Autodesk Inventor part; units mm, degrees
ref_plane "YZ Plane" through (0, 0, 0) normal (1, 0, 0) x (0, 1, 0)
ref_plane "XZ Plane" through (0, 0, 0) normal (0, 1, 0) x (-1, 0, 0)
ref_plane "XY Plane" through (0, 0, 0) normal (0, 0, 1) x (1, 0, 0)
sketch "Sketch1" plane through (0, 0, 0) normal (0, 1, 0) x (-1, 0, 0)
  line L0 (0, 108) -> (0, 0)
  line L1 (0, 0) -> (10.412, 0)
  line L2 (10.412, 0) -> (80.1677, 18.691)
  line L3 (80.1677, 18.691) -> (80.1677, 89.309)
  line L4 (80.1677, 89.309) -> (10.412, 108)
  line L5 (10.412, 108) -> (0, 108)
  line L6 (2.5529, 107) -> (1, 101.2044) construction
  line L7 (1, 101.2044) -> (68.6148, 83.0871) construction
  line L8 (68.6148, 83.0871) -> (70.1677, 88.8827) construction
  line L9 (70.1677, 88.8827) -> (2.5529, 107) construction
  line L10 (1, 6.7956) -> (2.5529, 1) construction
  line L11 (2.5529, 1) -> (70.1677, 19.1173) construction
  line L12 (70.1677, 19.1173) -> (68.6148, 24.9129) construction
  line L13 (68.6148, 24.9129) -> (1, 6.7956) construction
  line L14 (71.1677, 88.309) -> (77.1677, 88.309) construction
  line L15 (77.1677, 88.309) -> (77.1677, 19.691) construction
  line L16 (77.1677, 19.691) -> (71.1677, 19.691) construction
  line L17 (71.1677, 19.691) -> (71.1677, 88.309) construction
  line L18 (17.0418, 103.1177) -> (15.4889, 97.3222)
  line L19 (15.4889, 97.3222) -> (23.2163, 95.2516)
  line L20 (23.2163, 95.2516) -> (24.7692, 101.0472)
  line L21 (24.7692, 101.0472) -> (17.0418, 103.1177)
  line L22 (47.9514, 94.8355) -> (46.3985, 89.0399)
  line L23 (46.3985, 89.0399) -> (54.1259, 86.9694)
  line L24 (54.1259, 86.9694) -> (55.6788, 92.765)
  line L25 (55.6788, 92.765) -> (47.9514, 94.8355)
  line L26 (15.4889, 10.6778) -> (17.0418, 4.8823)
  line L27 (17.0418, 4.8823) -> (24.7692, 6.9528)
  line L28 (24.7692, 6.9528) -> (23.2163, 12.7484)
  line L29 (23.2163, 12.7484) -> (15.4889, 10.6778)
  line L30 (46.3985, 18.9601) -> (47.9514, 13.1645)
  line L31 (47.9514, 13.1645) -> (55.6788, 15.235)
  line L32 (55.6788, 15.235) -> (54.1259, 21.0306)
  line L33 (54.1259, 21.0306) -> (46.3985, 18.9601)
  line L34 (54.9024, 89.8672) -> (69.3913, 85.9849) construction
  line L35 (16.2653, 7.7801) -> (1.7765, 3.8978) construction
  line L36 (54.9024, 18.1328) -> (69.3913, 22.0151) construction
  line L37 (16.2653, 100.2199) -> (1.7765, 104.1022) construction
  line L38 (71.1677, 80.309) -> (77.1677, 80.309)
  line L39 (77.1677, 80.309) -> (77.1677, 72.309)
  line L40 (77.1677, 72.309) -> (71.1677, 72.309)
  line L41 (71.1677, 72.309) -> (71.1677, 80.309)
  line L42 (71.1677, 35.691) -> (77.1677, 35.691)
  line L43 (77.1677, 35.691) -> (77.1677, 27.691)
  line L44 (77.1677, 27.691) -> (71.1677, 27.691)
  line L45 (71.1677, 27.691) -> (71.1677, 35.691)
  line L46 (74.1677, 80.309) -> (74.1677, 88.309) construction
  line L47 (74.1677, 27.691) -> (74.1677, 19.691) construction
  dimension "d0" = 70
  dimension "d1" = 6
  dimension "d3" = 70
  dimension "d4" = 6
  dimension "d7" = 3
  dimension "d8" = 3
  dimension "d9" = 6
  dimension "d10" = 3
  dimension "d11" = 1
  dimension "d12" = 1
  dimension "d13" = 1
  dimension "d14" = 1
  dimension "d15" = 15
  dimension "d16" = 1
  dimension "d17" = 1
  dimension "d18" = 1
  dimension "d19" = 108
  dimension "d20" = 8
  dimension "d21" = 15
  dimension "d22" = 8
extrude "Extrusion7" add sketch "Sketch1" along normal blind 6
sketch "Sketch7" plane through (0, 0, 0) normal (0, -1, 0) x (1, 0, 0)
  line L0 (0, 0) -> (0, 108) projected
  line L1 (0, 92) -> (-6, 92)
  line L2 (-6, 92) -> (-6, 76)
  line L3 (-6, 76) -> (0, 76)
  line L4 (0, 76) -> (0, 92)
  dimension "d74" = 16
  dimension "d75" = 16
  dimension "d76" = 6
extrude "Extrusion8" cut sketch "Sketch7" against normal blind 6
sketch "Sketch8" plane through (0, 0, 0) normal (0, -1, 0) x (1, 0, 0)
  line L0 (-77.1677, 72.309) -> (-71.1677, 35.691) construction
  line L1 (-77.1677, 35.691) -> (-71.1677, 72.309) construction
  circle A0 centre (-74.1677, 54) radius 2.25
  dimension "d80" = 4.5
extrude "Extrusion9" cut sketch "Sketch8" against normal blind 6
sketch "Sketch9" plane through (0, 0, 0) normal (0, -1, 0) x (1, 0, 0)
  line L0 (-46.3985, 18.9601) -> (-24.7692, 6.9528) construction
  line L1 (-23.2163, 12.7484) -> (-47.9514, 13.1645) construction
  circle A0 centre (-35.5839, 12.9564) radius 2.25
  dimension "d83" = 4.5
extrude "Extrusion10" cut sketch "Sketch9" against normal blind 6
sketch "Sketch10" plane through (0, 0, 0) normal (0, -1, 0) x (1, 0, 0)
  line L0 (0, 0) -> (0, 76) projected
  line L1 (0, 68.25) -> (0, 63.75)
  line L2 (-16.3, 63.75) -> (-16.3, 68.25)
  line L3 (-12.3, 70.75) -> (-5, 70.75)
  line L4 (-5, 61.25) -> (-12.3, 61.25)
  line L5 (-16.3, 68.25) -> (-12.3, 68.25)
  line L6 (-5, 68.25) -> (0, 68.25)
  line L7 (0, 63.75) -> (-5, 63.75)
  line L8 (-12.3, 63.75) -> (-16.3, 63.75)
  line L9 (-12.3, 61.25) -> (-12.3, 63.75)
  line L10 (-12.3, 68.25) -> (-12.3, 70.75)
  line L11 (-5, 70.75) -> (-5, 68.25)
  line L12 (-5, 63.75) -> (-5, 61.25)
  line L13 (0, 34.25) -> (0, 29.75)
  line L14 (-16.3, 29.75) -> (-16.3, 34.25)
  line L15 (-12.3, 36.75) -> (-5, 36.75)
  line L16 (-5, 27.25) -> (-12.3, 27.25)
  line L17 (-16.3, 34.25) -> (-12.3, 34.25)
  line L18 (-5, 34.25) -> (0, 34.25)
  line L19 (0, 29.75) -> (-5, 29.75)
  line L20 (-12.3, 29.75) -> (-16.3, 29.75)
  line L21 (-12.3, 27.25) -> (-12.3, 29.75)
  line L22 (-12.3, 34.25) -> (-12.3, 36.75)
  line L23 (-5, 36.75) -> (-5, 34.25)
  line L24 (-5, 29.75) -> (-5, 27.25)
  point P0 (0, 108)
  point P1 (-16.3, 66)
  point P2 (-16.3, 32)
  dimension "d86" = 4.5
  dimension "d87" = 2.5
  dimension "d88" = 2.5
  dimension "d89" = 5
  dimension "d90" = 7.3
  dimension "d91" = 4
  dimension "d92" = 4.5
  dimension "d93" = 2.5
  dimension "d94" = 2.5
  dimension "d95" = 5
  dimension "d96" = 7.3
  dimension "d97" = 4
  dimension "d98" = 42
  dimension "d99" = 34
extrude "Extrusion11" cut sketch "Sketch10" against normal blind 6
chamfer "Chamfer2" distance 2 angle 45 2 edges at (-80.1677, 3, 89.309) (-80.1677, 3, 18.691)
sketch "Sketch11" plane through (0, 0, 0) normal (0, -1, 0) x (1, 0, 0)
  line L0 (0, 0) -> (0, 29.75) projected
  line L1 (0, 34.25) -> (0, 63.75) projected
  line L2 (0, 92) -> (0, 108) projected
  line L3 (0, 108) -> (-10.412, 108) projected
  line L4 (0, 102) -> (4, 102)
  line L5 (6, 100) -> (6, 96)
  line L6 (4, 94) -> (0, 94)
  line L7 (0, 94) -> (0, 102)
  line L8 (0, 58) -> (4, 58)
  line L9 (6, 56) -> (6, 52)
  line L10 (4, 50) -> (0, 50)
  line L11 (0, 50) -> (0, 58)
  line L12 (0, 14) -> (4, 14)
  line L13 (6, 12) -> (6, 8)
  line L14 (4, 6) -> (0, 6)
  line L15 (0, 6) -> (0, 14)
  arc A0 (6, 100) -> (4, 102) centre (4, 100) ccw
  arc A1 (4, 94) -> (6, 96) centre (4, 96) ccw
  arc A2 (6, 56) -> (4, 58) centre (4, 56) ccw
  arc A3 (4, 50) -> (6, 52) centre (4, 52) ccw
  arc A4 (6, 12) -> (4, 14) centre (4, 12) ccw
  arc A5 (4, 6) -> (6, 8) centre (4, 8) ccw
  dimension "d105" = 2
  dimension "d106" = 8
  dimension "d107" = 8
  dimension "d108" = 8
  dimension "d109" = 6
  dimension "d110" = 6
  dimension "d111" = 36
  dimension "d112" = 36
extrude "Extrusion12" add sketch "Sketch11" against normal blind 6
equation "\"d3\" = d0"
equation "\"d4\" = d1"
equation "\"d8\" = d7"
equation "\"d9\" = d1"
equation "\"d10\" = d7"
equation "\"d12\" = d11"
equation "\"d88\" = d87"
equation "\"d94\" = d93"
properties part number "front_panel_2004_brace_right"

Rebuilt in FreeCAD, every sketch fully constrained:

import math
import FreeCAD as App
import Part
import Sketcher
Q = App.Units.Quantity


def edges_at(feature, points):
    """Names of the edges that pass closest to the given points."""
    edges = feature.Shape.Edges
    near = lambda p: min(range(len(edges)), key=lambda i: edges[i].distToShape(Part.Vertex(*p))[0])
    return sorted({f"Edge{near(p) + 1}" for p in points})


def add_polygon(sketch, points):
    """Adds a closed chain of lines whose ends are joined by coincident constraints."""
    first, n = sketch.GeometryCount, len(points)
    for a, b in zip(points, points[1:] + points[:1]):
        sketch.addGeometry(Part.LineSegment(App.Vector(*a, 0), App.Vector(*b, 0)), False)
    for i in range(n):
        sketch.addConstraint(Sketcher.Constraint("Coincident", first + i, 2, first + (i + 1) % n, 1))

doc = App.newDocument("Part")
body = doc.addObject("PartDesign::Body", "Body")

sketch1 = body.newObject("Sketcher::SketchObject", "Sketch")
sketch1.AttachmentSupport = (doc.getObject("XZ_Plane"), [""])
sketch1.MapMode = "FlatFace"
add_polygon(sketch1, [(-10.412, 108), (0, 108), (0, 0), (-10.412, 0), (-80.1677, 18.691), (-80.1677, 89.309)])
add_polygon(sketch1, [(-17.0418, 4.8823), (-15.4889, 10.6778), (-23.2163, 12.7484), (-24.7692, 6.9528)])
add_polygon(sketch1, [(-47.9514, 13.1645), (-46.3985, 18.9601), (-54.1259, 21.0306), (-55.6788, 15.235)])
add_polygon(sketch1, [(-71.1677, 27.691), (-71.1677, 35.691), (-77.1677, 35.691), (-77.1677, 27.691)])
add_polygon(sketch1, [(-15.4889, 97.3222), (-17.0418, 103.1177), (-24.7692, 101.0472), (-23.2163, 95.2516)])
add_polygon(sketch1, [(-71.1677, 72.309), (-71.1677, 80.309), (-77.1677, 80.309), (-77.1677, 72.309)])
add_polygon(sketch1, [(-46.3985, 89.0399), (-47.9514, 94.8355), (-55.6788, 92.765), (-54.1259, 86.9694)])
sketch1.addConstraint(Sketcher.Constraint("Horizontal", 0))
sketch1.addConstraint(Sketcher.Constraint("Vertical", 1))
sketch1.addConstraint(Sketcher.Constraint("Horizontal", 2))
sketch1.addConstraint(Sketcher.Constraint("Vertical", 4))
sketch1.addConstraint(Sketcher.Constraint("Vertical", 14))
sketch1.addConstraint(Sketcher.Constraint("Horizontal", 15))
sketch1.addConstraint(Sketcher.Constraint("Vertical", 16))
sketch1.addConstraint(Sketcher.Constraint("Horizontal", 17))
sketch1.addConstraint(Sketcher.Constraint("Vertical", 22))
sketch1.addConstraint(Sketcher.Constraint("Horizontal", 23))
sketch1.addConstraint(Sketcher.Constraint("Vertical", 24))
sketch1.addConstraint(Sketcher.Constraint("Horizontal", 25))
sketch1.addConstraint(Sketcher.Constraint("Coincident", 1, 2, -1, 1))
sketch1.addConstraint(Sketcher.Constraint("Perpendicular", 3, 6))
sketch1.addConstraint(Sketcher.Constraint("Perpendicular", 6, 7))
sketch1.addConstraint(Sketcher.Constraint("Perpendicular", 7, 8))
sketch1.addConstraint(Sketcher.Constraint("Perpendicular", 8, 9))
sketch1.addConstraint(Sketcher.Constraint("Perpendicular", 9, 10))
sketch1.addConstraint(Sketcher.Constraint("Perpendicular", 10, 11))
sketch1.addConstraint(Sketcher.Constraint("Perpendicular", 11, 12))
sketch1.addConstraint(Sketcher.Constraint("Perpendicular", 12, 13))
sketch1.addConstraint(Sketcher.Constraint("Perpendicular", 5, 18))
sketch1.addConstraint(Sketcher.Constraint("Perpendicular", 18, 19))
sketch1.addConstraint(Sketcher.Constraint("Perpendicular", 19, 20))
sketch1.addConstraint(Sketcher.Constraint("Perpendicular", 20, 21))
sketch1.addConstraint(Sketcher.Constraint("Perpendicular", 21, 26))
sketch1.addConstraint(Sketcher.Constraint("Perpendicular", 26, 27))
sketch1.addConstraint(Sketcher.Constraint("Perpendicular", 27, 28))
sketch1.addConstraint(Sketcher.Constraint("Perpendicular", 28, 29))
sketch1.addConstraint(Sketcher.Constraint("Vertical", 2, 2, 5, 2))
sketch1.addConstraint(Sketcher.Constraint("Vertical", 9, 2, 18, 2))
sketch1.addConstraint(Sketcher.Constraint("Vertical", 8, 2, 19, 2))
sketch1.addConstraint(Sketcher.Constraint("Vertical", 7, 2, 20, 2))
sketch1.addConstraint(Sketcher.Constraint("Vertical", 17, 2, 22, 2))
sketch1.addConstraint(Sketcher.Constraint("Vertical", 16, 2, 23, 2))
sketch1.addConstraint(Sketcher.Constraint("Vertical", 13, 2, 26, 2))
sketch1.addConstraint(Sketcher.Constraint("Vertical", 12, 2, 27, 2))
sketch1.addConstraint(Sketcher.Constraint("Vertical", 11, 2, 28, 2))
sketch1.addConstraint(Sketcher.Constraint("Equal", 16, 22))
sketch1.addConstraint(Sketcher.Constraint("Equal", 3, 5))
sketch1.addConstraint(Sketcher.Constraint("Equal", 8, 10))
sketch1.addConstraint(Sketcher.Constraint("Equal", 9, 11))
sketch1.addConstraint(Sketcher.Constraint("DistanceX", 15, 2, 15, 1, Q("6 mm")))
sketch1.addConstraint(Sketcher.Constraint("DistanceY", 1, 2, 1, 1, Q("108 mm")))
sketch1.addConstraint(Sketcher.Constraint("DistanceY", 14, 1, 14, 2, Q("8 mm")))
sketch1.addConstraint(Sketcher.Constraint("Angle", 5, Q("15 deg")))
sketch1.addConstraint(Sketcher.Constraint("Distance", 6, Q("6 mm")))
sketch1.addConstraint(Sketcher.Constraint("Distance", 7, Q("8 mm")))
sketch1.addConstraint(Sketcher.Constraint("DistanceX", 3, 2, 15, 2, Q("3 mm")))
sketch1.addConstraint(Sketcher.Constraint("DistanceY", 3, 2, 14, 2, Q("17 mm")))
sketch1.addConstraint(Sketcher.Constraint("DistanceY", 22, 2, 4, 2, Q("9 mm")))
sketch1.addConstraint(Sketcher.Constraint("DistanceX", 0, 1, 0, 2, Q("10.412 mm")))
sketch1.addConstraint(Sketcher.Constraint("DistanceY", 4, 1, 4, 2, Q("70.618 mm")))
sketch1.addConstraint(Sketcher.Constraint("DistanceY", -1, 1, 10, 2, Q("18.96 mm")))
sketch1.addConstraint(Sketcher.Constraint("DistanceY", -1, 1, 29, 2, Q("89.04 mm")))
sketch1.addConstraint(Sketcher.Constraint("DistanceX", 6, 2, -1, 1, Q("15.489 mm")))
sketch1.addConstraint(Sketcher.Constraint("DistanceX", 11, 2, -1, 1, Q("54.126 mm")))
sketch1.addConstraint(Sketcher.Constraint("DistanceY", 7, 2, 13, 2, Q("0.416 mm")))
sketch1.addConstraint(Sketcher.Constraint("DistanceY", 26, 2, 20, 2, Q("0.416 mm")))
pad1 = body.newObject("PartDesign::Pad", "Pad")
pad1.Profile = sketch1
pad1.Length = 6
pad1.Reversed = True

sketch2 = body.newObject("Sketcher::SketchObject", "Sketch001")
sketch2.AttachmentSupport = (doc.getObject("XZ_Plane"), [""])
sketch2.MapMode = "FlatFace"
add_polygon(sketch2, [(-6, 76), (0, 76), (0, 92), (-6, 92)])
sketch2.addConstraint(Sketcher.Constraint("Horizontal", 0))
sketch2.addConstraint(Sketcher.Constraint("Vertical", 1))
sketch2.addConstraint(Sketcher.Constraint("Horizontal", 2))
sketch2.addConstraint(Sketcher.Constraint("Vertical", 3))
sketch2.addConstraint(Sketcher.Constraint("PointOnObject", 0, 2, -2))
sketch2.addConstraint(Sketcher.Constraint("DistanceX", 0, 1, 0, 2, Q("6 mm")))
sketch2.addConstraint(Sketcher.Constraint("DistanceY", 1, 1, 1, 2, Q("16 mm")))
sketch2.addConstraint(Sketcher.Constraint("DistanceY", -1, 1, 0, 2, Q("76 mm")))
pocket1 = body.newObject("PartDesign::Pocket", "Pocket")
pocket1.Profile = sketch2
pocket1.Length = 6

sketch3 = body.newObject("Sketcher::SketchObject", "Sketch002")
sketch3.AttachmentSupport = (doc.getObject("XZ_Plane"), [""])
sketch3.MapMode = "FlatFace"
sketch3.addGeometry(Part.Circle(App.Vector(-74.1677, 54, 0), App.Vector(0, 0, 1), 2.25), False)
sketch3.addConstraint(Sketcher.Constraint("Diameter", 0, Q("4.5 mm")))
sketch3.addConstraint(Sketcher.Constraint("DistanceY", -1, 1, 0, 3, Q("54 mm")))
sketch3.addConstraint(Sketcher.Constraint("DistanceX", 0, 3, -1, 1, Q("74.1677 mm")))
pocket2 = body.newObject("PartDesign::Pocket", "Pocket001")
pocket2.Profile = sketch3
pocket2.Length = 6

sketch4 = body.newObject("Sketcher::SketchObject", "Sketch003")
sketch4.AttachmentSupport = (doc.getObject("XZ_Plane"), [""])
sketch4.MapMode = "FlatFace"
sketch4.addGeometry(Part.Circle(App.Vector(-35.5839, 12.9564, 0), App.Vector(0, 0, 1), 2.25), False)
sketch4.addConstraint(Sketcher.Constraint("Diameter", 0, Q("4.5 mm")))
sketch4.addConstraint(Sketcher.Constraint("DistanceX", 0, 3, -1, 1, Q("35.584 mm")))
sketch4.addConstraint(Sketcher.Constraint("DistanceY", -1, 1, 0, 3, Q("12.9564 mm")))
pocket3 = body.newObject("PartDesign::Pocket", "Pocket002")
pocket3.Profile = sketch4
pocket3.Length = 6

sketch5 = body.newObject("Sketcher::SketchObject", "Sketch004")
sketch5.AttachmentSupport = (doc.getObject("XZ_Plane"), [""])
sketch5.MapMode = "FlatFace"
add_polygon(sketch5, [(-5, 29.75), (0, 29.75), (0, 34.25), (-5, 34.25), (-5, 36.75), (-12.3, 36.75), (-12.3, 34.25), (-16.3, 34.25), (-16.3, 29.75), (-12.3, 29.75), (-12.3, 27.25), (-5, 27.25)])
add_polygon(sketch5, [(-5, 63.75), (0, 63.75), (0, 68.25), (-5, 68.25), (-5, 70.75), (-12.3, 70.75), (-12.3, 68.25), (-16.3, 68.25), (-16.3, 63.75), (-12.3, 63.75), (-12.3, 61.25), (-5, 61.25)])
sketch5.addConstraint(Sketcher.Constraint("Horizontal", 0))
sketch5.addConstraint(Sketcher.Constraint("Vertical", 1))
sketch5.addConstraint(Sketcher.Constraint("Horizontal", 2))
sketch5.addConstraint(Sketcher.Constraint("Vertical", 3))
sketch5.addConstraint(Sketcher.Constraint("Horizontal", 4))
sketch5.addConstraint(Sketcher.Constraint("Vertical", 5))
sketch5.addConstraint(Sketcher.Constraint("Horizontal", 6))
sketch5.addConstraint(Sketcher.Constraint("Vertical", 7))
sketch5.addConstraint(Sketcher.Constraint("Horizontal", 8))
sketch5.addConstraint(Sketcher.Constraint("Vertical", 9))
sketch5.addConstraint(Sketcher.Constraint("Horizontal", 10))
sketch5.addConstraint(Sketcher.Constraint("Vertical", 11))
sketch5.addConstraint(Sketcher.Constraint("Horizontal", 12))
sketch5.addConstraint(Sketcher.Constraint("Vertical", 13))
sketch5.addConstraint(Sketcher.Constraint("Horizontal", 14))
sketch5.addConstraint(Sketcher.Constraint("Vertical", 15))
sketch5.addConstraint(Sketcher.Constraint("Horizontal", 16))
sketch5.addConstraint(Sketcher.Constraint("Vertical", 17))
sketch5.addConstraint(Sketcher.Constraint("Horizontal", 18))
sketch5.addConstraint(Sketcher.Constraint("Vertical", 19))
sketch5.addConstraint(Sketcher.Constraint("Horizontal", 20))
sketch5.addConstraint(Sketcher.Constraint("Vertical", 21))
sketch5.addConstraint(Sketcher.Constraint("Horizontal", 22))
sketch5.addConstraint(Sketcher.Constraint("Vertical", 23))
sketch5.addConstraint(Sketcher.Constraint("PointOnObject", 0, 2, -2))
sketch5.addConstraint(Sketcher.Constraint("PointOnObject", 12, 2, -2))
sketch5.addConstraint(Sketcher.Constraint("Horizontal", 2, 2, 5, 2))
sketch5.addConstraint(Sketcher.Constraint("Horizontal", 0, 2, 7, 2))
sketch5.addConstraint(Sketcher.Constraint("Horizontal", 14, 2, 17, 2))
sketch5.addConstraint(Sketcher.Constraint("Horizontal", 12, 2, 19, 2))
sketch5.addConstraint(Sketcher.Constraint("Vertical", 5, 2, 8, 2))
sketch5.addConstraint(Sketcher.Constraint("Vertical", 3, 2, 10, 2))
sketch5.addConstraint(Sketcher.Constraint("Vertical", 11, 2, 14, 2))
sketch5.addConstraint(Sketcher.Constraint("Vertical", 9, 2, 16, 2))
sketch5.addConstraint(Sketcher.Constraint("Vertical", 7, 2, 18, 2))
sketch5.addConstraint(Sketcher.Constraint("Vertical", 17, 2, 20, 2))
sketch5.addConstraint(Sketcher.Constraint("Vertical", 15, 2, 22, 2))
sketch5.addConstraint(Sketcher.Constraint("Equal", 5, 9))
sketch5.addConstraint(Sketcher.Constraint("Equal", 7, 13))
sketch5.addConstraint(Sketcher.Constraint("Equal", 11, 15))
sketch5.addConstraint(Sketcher.Constraint("Equal", 17, 21))
sketch5.addConstraint(Sketcher.Constraint("DistanceX", 0, 1, 0, 2, Q("5 mm")))
sketch5.addConstraint(Sketcher.Constraint("DistanceX", 6, 2, 6, 1, Q("4 mm")))
sketch5.addConstraint(Sketcher.Constraint("DistanceX", 4, 2, 4, 1, Q("7.3 mm")))
sketch5.addConstraint(Sketcher.Constraint("DistanceY", 1, 1, 1, 2, Q("4.5 mm")))
sketch5.addConstraint(Sketcher.Constraint("DistanceY", 3, 1, 3, 2, Q("2.5 mm")))
sketch5.addConstraint(Sketcher.Constraint("DistanceY", 1, 2, 13, 2, Q("34 mm")))
sketch5.addConstraint(Sketcher.Constraint("DistanceY", -1, 1, 0, 2, Q("29.75 mm")))
pocket4 = body.newObject("PartDesign::Pocket", "Pocket003")
pocket4.Profile = sketch5
pocket4.Length = 6
doc.recompute()

chamfer = body.newObject("PartDesign::Chamfer", "Chamfer")
chamfer.Base = (pocket4, edges_at(pocket4, [(-80.168, 3, 89.309), (-80.168, 3, 18.691)]))
chamfer.Size = 2

sketch6 = body.newObject("Sketcher::SketchObject", "Sketch005")
sketch6.AttachmentSupport = (doc.getObject("XZ_Plane"), [""])
sketch6.MapMode = "FlatFace"
sketch6.addGeometry(Part.LineSegment(App.Vector(0, 14, 0), App.Vector(0, 6, 0)), False)
sketch6.addGeometry(Part.LineSegment(App.Vector(0, 6, 0), App.Vector(4, 6, 0)), False)
sketch6.addGeometry(Part.ArcOfCircle(Part.Circle(App.Vector(4, 8, 0), App.Vector(0, 0, 1), 2), math.radians(-90), math.radians(0)), False)
sketch6.addGeometry(Part.LineSegment(App.Vector(6, 8, 0), App.Vector(6, 12, 0)), False)
sketch6.addGeometry(Part.ArcOfCircle(Part.Circle(App.Vector(4, 12, 0), App.Vector(0, 0, 1), 2), math.radians(0), math.radians(90)), False)
sketch6.addGeometry(Part.LineSegment(App.Vector(4, 14, 0), App.Vector(0, 14, 0)), False)
sketch6.addGeometry(Part.LineSegment(App.Vector(0, 58, 0), App.Vector(0, 50, 0)), False)
sketch6.addGeometry(Part.LineSegment(App.Vector(0, 50, 0), App.Vector(4, 50, 0)), False)
sketch6.addGeometry(Part.ArcOfCircle(Part.Circle(App.Vector(4, 52, 0), App.Vector(0, 0, 1), 2), math.radians(-90), math.radians(0)), False)
sketch6.addGeometry(Part.LineSegment(App.Vector(6, 52, 0), App.Vector(6, 56, 0)), False)
sketch6.addGeometry(Part.ArcOfCircle(Part.Circle(App.Vector(4, 56, 0), App.Vector(0, 0, 1), 2), math.radians(0), math.radians(90)), False)
sketch6.addGeometry(Part.LineSegment(App.Vector(4, 58, 0), App.Vector(0, 58, 0)), False)
sketch6.addGeometry(Part.LineSegment(App.Vector(0, 102, 0), App.Vector(0, 94, 0)), False)
sketch6.addGeometry(Part.LineSegment(App.Vector(0, 94, 0), App.Vector(4, 94, 0)), False)
sketch6.addGeometry(Part.ArcOfCircle(Part.Circle(App.Vector(4, 96, 0), App.Vector(0, 0, 1), 2), math.radians(-90), math.radians(0)), False)
sketch6.addGeometry(Part.LineSegment(App.Vector(6, 96, 0), App.Vector(6, 100, 0)), False)
sketch6.addGeometry(Part.ArcOfCircle(Part.Circle(App.Vector(4, 100, 0), App.Vector(0, 0, 1), 2), math.radians(0), math.radians(90)), False)
sketch6.addGeometry(Part.LineSegment(App.Vector(4, 102, 0), App.Vector(0, 102, 0)), False)
sketch6.addConstraint(Sketcher.Constraint("Coincident", 0, 2, 1, 1))
sketch6.addConstraint(Sketcher.Constraint("Tangent", 1, 2, 2, 1))
sketch6.addConstraint(Sketcher.Constraint("Tangent", 2, 2, 3, 1))
sketch6.addConstraint(Sketcher.Constraint("Tangent", 3, 2, 4, 1))
sketch6.addConstraint(Sketcher.Constraint("Tangent", 4, 2, 5, 1))
sketch6.addConstraint(Sketcher.Constraint("Coincident", 5, 2, 0, 1))
sketch6.addConstraint(Sketcher.Constraint("Coincident", 6, 2, 7, 1))
sketch6.addConstraint(Sketcher.Constraint("Tangent", 7, 2, 8, 1))
sketch6.addConstraint(Sketcher.Constraint("Tangent", 8, 2, 9, 1))
sketch6.addConstraint(Sketcher.Constraint("Tangent", 9, 2, 10, 1))
sketch6.addConstraint(Sketcher.Constraint("Tangent", 10, 2, 11, 1))
sketch6.addConstraint(Sketcher.Constraint("Coincident", 11, 2, 6, 1))
sketch6.addConstraint(Sketcher.Constraint("Coincident", 12, 2, 13, 1))
sketch6.addConstraint(Sketcher.Constraint("Tangent", 13, 2, 14, 1))
sketch6.addConstraint(Sketcher.Constraint("Tangent", 14, 2, 15, 1))
sketch6.addConstraint(Sketcher.Constraint("Tangent", 15, 2, 16, 1))
sketch6.addConstraint(Sketcher.Constraint("Tangent", 16, 2, 17, 1))
sketch6.addConstraint(Sketcher.Constraint("Coincident", 17, 2, 12, 1))
sketch6.addConstraint(Sketcher.Constraint("Vertical", 0))
sketch6.addConstraint(Sketcher.Constraint("Horizontal", 1))
sketch6.addConstraint(Sketcher.Constraint("Vertical", 3))
sketch6.addConstraint(Sketcher.Constraint("Horizontal", 5))
sketch6.addConstraint(Sketcher.Constraint("Vertical", 6))
sketch6.addConstraint(Sketcher.Constraint("Horizontal", 7))
sketch6.addConstraint(Sketcher.Constraint("Vertical", 9))
sketch6.addConstraint(Sketcher.Constraint("Horizontal", 11))
sketch6.addConstraint(Sketcher.Constraint("Vertical", 12))
sketch6.addConstraint(Sketcher.Constraint("Horizontal", 13))
sketch6.addConstraint(Sketcher.Constraint("Vertical", 15))
sketch6.addConstraint(Sketcher.Constraint("Horizontal", 17))
sketch6.addConstraint(Sketcher.Constraint("Equal", 2, 4))
sketch6.addConstraint(Sketcher.Constraint("Equal", 4, 8))
sketch6.addConstraint(Sketcher.Constraint("Equal", 8, 10))
sketch6.addConstraint(Sketcher.Constraint("Equal", 10, 14))
sketch6.addConstraint(Sketcher.Constraint("Equal", 14, 16))
sketch6.addConstraint(Sketcher.Constraint("PointOnObject", 0, 2, -2))
sketch6.addConstraint(Sketcher.Constraint("PointOnObject", 6, 2, -2))
sketch6.addConstraint(Sketcher.Constraint("PointOnObject", 12, 2, -2))
sketch6.addConstraint(Sketcher.Constraint("Vertical", 4, 3, 8, 3))
sketch6.addConstraint(Sketcher.Constraint("Vertical", 10, 3, 14, 3))
sketch6.addConstraint(Sketcher.Constraint("Equal", 17, 3))
sketch6.addConstraint(Sketcher.Constraint("Equal", 0, 6))
sketch6.addConstraint(Sketcher.Constraint("Equal", 6, 12))
sketch6.addConstraint(Sketcher.Constraint("Radius", 2, Q("2 mm")))
sketch6.addConstraint(Sketcher.Constraint("DistanceY", 0, 2, 0, 1, Q("8 mm")))
sketch6.addConstraint(Sketcher.Constraint("DistanceY", -1, 1, 2, 3, Q("8 mm")))
sketch6.addConstraint(Sketcher.Constraint("DistanceY", 5, 2, 6, 2, Q("36 mm")))
sketch6.addConstraint(Sketcher.Constraint("DistanceY", 11, 2, 12, 2, Q("36 mm")))
pad2 = body.newObject("PartDesign::Pad", "Pad001")
pad2.Profile = sketch6
pad2.Length = 6
pad2.Reversed = True

doc.recompute()
